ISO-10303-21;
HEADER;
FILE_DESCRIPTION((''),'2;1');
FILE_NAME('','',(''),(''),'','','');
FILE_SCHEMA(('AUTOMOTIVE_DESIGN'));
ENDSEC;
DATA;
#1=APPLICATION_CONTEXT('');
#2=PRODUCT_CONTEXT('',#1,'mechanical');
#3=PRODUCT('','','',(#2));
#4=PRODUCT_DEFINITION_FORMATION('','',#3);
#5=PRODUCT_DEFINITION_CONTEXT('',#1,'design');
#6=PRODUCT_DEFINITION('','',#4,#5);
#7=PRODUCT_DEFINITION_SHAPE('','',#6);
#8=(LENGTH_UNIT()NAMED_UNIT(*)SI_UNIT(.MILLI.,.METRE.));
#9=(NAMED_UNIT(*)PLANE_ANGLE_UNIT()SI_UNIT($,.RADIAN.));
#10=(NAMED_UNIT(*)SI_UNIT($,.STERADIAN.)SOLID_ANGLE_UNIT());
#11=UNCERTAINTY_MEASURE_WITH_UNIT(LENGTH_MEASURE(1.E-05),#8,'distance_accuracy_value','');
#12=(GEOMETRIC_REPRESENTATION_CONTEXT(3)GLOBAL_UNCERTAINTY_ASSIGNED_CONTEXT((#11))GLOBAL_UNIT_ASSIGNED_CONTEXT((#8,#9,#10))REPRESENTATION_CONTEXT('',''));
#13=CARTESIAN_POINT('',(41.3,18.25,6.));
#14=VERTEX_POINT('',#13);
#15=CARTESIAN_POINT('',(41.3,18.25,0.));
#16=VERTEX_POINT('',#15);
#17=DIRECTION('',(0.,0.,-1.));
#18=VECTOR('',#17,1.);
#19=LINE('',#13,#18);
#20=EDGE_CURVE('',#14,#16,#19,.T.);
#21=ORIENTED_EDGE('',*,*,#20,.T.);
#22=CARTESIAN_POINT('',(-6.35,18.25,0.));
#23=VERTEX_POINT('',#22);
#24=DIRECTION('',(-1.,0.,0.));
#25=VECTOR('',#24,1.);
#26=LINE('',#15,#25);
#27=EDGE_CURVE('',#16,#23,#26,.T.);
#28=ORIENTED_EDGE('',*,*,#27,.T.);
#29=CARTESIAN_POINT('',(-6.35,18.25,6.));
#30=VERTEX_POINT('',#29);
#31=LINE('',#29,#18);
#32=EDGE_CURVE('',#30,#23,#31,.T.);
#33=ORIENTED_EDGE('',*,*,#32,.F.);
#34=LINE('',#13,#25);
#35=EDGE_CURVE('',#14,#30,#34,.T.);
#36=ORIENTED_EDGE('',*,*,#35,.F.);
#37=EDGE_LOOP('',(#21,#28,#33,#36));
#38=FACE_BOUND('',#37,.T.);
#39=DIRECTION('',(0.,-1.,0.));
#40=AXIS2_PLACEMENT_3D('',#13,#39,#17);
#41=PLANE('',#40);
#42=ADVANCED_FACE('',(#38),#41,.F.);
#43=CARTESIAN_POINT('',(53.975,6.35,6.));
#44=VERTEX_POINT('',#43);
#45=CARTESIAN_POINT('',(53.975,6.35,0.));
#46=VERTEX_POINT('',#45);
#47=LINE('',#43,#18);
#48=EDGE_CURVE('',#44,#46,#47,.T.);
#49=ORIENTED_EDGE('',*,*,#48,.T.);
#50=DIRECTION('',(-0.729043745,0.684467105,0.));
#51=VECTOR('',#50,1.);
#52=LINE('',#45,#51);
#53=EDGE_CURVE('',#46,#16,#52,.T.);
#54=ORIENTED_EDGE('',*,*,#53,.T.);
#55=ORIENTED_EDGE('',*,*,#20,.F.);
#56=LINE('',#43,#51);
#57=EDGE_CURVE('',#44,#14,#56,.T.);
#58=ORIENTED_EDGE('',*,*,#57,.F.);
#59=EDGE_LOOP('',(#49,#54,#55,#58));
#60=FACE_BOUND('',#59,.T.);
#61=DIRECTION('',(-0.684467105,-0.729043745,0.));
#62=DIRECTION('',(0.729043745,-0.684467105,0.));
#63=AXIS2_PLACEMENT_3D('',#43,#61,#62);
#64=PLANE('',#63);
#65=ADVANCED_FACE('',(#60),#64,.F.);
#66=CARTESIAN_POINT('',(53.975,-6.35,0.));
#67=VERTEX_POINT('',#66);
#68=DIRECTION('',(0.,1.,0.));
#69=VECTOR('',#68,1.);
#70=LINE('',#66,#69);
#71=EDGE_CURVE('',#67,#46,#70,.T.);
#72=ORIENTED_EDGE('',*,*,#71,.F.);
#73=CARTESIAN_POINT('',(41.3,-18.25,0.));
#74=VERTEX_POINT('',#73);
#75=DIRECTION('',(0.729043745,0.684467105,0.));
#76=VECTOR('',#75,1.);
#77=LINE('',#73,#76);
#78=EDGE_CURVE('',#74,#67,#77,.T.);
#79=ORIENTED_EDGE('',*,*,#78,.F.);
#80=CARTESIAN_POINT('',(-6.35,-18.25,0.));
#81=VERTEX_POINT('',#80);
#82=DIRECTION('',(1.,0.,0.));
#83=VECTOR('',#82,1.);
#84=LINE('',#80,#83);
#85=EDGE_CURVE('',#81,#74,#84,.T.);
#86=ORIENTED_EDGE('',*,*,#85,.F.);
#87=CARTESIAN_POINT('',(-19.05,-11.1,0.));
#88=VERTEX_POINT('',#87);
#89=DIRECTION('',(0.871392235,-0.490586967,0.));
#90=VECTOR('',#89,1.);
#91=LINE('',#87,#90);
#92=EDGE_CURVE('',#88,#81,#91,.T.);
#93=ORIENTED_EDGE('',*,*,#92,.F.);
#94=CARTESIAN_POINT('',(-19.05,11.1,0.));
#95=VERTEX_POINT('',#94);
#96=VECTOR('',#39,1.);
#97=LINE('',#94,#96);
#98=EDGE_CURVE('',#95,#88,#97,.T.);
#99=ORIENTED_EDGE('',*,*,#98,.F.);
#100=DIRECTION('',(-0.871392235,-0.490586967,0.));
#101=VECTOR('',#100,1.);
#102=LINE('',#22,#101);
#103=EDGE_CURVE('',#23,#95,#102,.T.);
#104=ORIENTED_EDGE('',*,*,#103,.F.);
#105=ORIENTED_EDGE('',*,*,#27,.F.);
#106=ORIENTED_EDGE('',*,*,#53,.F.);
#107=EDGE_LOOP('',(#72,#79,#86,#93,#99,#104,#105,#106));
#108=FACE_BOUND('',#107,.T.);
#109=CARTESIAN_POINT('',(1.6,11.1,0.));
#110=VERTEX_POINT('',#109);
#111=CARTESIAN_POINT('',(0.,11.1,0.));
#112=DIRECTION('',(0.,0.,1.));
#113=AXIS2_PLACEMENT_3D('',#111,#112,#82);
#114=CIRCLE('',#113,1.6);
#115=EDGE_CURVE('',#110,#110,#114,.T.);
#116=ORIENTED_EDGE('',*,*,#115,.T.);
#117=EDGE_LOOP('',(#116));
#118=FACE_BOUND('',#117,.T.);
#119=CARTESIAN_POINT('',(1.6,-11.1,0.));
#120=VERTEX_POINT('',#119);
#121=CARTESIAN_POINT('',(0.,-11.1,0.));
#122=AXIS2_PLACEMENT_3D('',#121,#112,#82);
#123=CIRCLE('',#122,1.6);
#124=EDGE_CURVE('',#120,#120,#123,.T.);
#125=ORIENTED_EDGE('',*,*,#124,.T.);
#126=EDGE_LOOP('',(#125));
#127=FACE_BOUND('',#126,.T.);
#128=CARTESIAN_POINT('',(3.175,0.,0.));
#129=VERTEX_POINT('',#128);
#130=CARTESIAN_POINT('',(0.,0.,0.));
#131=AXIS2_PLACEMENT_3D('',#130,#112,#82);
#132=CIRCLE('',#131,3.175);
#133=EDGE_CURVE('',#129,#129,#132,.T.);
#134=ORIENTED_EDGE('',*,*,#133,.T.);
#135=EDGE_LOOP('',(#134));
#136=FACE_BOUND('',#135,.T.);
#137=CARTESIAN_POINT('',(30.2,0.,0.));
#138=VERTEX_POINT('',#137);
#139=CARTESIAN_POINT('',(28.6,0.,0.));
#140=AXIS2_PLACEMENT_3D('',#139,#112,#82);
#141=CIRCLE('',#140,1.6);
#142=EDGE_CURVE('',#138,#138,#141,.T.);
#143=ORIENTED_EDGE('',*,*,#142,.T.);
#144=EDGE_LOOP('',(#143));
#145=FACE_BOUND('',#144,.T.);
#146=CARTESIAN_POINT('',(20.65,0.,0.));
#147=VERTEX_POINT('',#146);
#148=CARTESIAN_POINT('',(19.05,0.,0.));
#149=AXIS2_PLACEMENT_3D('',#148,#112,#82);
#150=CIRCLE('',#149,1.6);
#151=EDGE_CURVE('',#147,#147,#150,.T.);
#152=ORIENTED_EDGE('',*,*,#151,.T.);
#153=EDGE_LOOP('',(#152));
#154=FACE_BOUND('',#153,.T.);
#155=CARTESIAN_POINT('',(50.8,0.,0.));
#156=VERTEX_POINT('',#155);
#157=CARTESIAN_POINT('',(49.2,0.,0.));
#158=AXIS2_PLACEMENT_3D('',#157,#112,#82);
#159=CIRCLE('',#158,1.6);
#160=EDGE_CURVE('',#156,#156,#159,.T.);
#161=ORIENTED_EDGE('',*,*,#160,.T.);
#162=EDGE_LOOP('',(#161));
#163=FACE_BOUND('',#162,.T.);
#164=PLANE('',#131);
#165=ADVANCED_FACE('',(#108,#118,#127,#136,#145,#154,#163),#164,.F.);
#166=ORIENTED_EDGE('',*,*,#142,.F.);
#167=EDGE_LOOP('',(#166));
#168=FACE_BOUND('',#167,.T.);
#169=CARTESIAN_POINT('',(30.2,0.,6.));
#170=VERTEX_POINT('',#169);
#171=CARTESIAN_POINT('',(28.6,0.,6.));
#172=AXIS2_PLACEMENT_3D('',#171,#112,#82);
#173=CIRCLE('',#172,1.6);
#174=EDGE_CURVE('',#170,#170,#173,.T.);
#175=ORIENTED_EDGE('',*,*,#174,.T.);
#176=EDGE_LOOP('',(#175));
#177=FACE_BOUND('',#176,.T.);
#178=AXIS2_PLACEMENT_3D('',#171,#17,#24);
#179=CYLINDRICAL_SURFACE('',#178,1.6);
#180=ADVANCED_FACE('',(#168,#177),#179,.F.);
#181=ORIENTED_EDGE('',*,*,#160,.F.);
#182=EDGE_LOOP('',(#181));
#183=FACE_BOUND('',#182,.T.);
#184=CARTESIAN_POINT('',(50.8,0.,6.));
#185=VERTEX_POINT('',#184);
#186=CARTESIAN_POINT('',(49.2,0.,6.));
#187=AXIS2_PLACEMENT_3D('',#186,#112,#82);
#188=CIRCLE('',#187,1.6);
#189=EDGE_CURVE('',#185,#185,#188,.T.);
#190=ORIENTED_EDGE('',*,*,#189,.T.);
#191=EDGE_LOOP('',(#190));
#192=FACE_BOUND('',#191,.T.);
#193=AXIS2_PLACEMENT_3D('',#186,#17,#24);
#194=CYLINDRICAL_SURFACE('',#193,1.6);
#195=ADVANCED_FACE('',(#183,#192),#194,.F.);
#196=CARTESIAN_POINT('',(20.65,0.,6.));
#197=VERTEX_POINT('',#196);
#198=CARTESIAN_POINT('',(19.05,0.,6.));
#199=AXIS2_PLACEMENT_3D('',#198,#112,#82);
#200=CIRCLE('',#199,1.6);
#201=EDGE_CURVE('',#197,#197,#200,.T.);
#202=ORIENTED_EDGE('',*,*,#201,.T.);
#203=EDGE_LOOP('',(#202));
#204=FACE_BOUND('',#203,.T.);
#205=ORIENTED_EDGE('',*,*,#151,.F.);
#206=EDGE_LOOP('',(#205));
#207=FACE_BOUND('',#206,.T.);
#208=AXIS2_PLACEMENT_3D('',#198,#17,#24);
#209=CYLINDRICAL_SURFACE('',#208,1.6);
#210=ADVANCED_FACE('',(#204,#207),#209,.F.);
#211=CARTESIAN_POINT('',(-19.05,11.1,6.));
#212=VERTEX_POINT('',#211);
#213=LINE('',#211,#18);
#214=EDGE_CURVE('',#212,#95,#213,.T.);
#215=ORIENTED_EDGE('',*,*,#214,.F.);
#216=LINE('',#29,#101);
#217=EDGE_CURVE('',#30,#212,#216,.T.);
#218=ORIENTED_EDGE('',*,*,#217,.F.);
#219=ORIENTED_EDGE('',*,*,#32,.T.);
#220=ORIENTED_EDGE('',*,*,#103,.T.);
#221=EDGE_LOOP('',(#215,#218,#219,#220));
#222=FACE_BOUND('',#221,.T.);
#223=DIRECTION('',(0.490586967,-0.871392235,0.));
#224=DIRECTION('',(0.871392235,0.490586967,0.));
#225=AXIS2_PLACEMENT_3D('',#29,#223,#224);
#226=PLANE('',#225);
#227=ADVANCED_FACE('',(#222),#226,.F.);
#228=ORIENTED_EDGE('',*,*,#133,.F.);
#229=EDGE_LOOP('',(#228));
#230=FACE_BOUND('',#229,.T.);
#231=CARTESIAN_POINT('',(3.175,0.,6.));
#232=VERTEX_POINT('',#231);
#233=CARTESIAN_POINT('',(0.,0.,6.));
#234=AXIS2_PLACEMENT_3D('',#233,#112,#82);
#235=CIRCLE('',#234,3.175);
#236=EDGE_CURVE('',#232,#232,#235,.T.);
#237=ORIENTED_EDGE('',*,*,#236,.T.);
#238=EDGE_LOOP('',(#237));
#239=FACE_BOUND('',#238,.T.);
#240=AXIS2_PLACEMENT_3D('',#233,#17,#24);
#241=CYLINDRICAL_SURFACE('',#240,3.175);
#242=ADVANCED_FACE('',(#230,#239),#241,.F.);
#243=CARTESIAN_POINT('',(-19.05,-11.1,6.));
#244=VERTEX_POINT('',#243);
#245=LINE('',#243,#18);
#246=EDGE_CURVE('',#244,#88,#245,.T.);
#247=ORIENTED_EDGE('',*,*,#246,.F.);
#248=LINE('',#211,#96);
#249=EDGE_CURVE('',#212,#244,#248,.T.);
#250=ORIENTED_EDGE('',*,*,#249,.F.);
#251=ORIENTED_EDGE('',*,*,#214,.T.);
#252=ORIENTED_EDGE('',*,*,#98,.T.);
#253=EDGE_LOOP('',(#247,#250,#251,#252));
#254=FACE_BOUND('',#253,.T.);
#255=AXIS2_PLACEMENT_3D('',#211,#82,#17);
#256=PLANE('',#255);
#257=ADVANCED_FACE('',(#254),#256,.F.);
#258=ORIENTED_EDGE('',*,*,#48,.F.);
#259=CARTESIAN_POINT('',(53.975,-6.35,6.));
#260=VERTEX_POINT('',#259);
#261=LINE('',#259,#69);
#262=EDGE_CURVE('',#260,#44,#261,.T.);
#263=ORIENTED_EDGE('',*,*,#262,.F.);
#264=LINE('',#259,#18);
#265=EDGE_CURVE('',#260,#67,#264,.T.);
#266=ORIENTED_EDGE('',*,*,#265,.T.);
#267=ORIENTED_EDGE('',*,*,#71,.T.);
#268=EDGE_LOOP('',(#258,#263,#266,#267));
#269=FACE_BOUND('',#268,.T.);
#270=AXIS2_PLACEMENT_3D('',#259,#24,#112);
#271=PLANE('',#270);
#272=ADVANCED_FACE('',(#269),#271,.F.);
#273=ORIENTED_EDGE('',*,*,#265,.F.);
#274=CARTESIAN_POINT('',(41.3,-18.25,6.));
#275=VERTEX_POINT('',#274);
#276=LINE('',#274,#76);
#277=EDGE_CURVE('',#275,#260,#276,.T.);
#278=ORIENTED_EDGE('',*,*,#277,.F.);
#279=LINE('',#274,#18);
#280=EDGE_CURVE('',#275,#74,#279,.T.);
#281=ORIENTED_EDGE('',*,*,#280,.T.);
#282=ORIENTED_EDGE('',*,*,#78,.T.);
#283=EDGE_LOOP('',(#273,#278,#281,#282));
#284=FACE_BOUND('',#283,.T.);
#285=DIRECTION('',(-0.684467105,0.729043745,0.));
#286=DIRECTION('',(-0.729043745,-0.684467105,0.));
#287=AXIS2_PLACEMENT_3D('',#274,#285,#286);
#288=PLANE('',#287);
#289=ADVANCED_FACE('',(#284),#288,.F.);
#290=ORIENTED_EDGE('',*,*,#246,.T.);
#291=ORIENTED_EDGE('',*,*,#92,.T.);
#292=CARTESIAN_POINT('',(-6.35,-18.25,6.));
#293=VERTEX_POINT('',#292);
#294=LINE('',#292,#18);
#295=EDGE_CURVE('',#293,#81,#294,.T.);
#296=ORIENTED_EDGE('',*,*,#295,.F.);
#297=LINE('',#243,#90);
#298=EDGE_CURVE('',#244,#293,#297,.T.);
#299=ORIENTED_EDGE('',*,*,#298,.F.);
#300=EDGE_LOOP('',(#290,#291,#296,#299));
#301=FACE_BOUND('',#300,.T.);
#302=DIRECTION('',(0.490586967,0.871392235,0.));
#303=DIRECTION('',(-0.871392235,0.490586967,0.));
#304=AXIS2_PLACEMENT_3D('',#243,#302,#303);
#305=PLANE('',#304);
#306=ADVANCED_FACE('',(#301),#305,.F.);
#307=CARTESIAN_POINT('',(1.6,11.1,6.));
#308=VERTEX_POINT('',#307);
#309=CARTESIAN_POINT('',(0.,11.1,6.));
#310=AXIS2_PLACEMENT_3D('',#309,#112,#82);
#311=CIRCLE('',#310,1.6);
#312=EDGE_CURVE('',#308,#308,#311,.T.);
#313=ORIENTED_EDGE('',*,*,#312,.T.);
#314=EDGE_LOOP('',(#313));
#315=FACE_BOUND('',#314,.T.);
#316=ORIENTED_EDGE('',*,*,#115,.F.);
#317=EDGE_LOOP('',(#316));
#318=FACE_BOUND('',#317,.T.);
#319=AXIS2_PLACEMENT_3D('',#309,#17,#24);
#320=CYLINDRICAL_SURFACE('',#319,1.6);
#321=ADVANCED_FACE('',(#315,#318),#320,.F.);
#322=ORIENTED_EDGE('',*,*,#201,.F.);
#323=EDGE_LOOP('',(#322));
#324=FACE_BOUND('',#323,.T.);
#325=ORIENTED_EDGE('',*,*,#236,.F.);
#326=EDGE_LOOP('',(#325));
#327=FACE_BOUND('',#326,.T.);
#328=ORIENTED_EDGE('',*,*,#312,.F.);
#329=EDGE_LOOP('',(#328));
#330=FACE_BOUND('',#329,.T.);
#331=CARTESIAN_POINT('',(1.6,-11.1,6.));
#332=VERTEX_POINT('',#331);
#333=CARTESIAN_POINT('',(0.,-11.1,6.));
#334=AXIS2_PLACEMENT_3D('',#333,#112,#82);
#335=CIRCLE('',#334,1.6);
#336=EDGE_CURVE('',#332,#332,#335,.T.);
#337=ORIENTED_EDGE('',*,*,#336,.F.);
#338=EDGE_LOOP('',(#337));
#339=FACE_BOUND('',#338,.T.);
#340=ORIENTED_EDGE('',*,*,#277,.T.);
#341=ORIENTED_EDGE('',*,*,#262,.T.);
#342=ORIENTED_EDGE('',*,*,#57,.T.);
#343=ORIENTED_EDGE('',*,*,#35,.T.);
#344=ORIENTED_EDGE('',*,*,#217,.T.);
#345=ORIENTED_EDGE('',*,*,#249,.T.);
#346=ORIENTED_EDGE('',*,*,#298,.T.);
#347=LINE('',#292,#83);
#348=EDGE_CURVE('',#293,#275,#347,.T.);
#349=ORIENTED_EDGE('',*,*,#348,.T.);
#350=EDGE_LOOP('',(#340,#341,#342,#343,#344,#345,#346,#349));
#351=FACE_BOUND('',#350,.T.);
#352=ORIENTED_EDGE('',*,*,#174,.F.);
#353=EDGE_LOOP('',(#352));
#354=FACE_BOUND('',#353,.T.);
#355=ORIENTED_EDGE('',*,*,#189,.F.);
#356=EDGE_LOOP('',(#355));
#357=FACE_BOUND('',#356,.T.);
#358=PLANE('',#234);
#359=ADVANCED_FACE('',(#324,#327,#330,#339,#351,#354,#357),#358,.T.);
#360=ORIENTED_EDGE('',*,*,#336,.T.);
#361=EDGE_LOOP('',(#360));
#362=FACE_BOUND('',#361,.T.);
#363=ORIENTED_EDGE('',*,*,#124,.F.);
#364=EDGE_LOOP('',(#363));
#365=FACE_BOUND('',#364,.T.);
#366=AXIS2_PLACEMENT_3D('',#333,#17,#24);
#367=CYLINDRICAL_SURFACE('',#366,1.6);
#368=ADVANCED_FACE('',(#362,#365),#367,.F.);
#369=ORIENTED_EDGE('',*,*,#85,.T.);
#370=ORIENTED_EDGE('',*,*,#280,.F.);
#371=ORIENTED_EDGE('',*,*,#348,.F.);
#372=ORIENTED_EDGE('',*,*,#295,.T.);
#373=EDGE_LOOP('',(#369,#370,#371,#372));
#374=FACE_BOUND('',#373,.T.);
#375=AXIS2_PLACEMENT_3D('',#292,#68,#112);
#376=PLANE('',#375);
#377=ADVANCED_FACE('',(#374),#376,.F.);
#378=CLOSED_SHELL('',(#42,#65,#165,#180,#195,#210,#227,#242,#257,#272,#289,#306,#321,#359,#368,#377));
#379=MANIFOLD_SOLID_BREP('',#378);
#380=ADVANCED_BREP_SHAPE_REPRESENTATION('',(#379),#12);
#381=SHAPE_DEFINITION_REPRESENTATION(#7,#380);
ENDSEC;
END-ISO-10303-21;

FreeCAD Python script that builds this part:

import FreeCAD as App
import Part
import Sketcher


def add_polygon(sketch, points):
    """Adds a closed chain of lines whose ends are joined by coincident constraints."""
    first, n = sketch.GeometryCount, len(points)
    for a, b in zip(points, points[1:] + points[:1]):
        sketch.addGeometry(Part.LineSegment(App.Vector(*a, 0), App.Vector(*b, 0)), False)
    for i in range(n):
        sketch.addConstraint(Sketcher.Constraint("Coincident", first + i, 2, first + (i + 1) % n, 1))

doc = App.newDocument("Part")
body = doc.addObject("PartDesign::Body", "Body")

# Sketch on XY plane
sketch1 = doc.addObject("Sketcher::SketchObject", "Sketch")
body.addObject(sketch1)
sketch1.AttachmentSupport = (doc.XY_Plane, [""])
sketch1.MapMode = "FlatFace"
add_polygon(sketch1, [(-19.05, -11.1), (-6.35, -18.25), (41.3, -18.25), (53.975, -6.35), (53.975, 6.35), (41.3, 18.25), (-6.35, 18.25), (-19.05, 11.1)])  # lines 0-7
sketch1.addGeometry(Part.Circle(App.Vector(0, -11.1, 0), App.Vector(0, 0, 1), 1.6), False)  # 8
sketch1.addGeometry(Part.Circle(App.Vector(0, 0, 0), App.Vector(0, 0, 1), 3.175), False)  # 9
sketch1.addGeometry(Part.Circle(App.Vector(19.05, 0, 0), App.Vector(0, 0, 1), 1.6), False)  # 10
sketch1.addGeometry(Part.Circle(App.Vector(28.6, 0, 0), App.Vector(0, 0, 1), 1.6), False)  # 11
sketch1.addGeometry(Part.Circle(App.Vector(49.2, 0, 0), App.Vector(0, 0, 1), 1.6), False)  # 12
sketch1.addGeometry(Part.Circle(App.Vector(0, 11.1, 0), App.Vector(0, 0, 1), 1.6), False)  # 13
sketch1.addConstraint([
    Sketcher.Constraint("Horizontal", 1),
    Sketcher.Constraint("Vertical", 3),
    Sketcher.Constraint("Horizontal", 5),
    Sketcher.Constraint("Vertical", 7),
    Sketcher.Constraint("Coincident", 9, 3, -1, 1),
    Sketcher.Constraint("Equal", 8, 10),
    Sketcher.Constraint("Equal", 10, 11),
    Sketcher.Constraint("Equal", 11, 12),
    Sketcher.Constraint("Equal", 12, 13),
    Sketcher.Constraint("Symmetric", 8, 3, 13, 3, -1, 1),
    Sketcher.Constraint("Symmetric", 1, 2, 4, 2, -1),
    Sketcher.Constraint("PointOnObject", 8, 3, -2),
    Sketcher.Constraint("PointOnObject", 10, 3, -1),
    Sketcher.Constraint("PointOnObject", 11, 3, -1),
    Sketcher.Constraint("PointOnObject", 12, 3, -1),
    Sketcher.Constraint("Horizontal", 13, 3, 6, 2),
    Sketcher.Constraint("Horizontal", 8, 3, 7, 2),
    Sketcher.Constraint("Vertical", 0, 2, 5, 2),
    Sketcher.Constraint("Equal", 2, 4),
    Sketcher.Constraint("Diameter", 8, 3.2),
    Sketcher.Constraint("Diameter", 9, 6.35),
    Sketcher.Constraint("DistanceY", 3, 1, 3, 2, 12.7),
    Sketcher.Constraint("DistanceY", 7, 2, 7, 1, 22.2),
    Sketcher.Constraint("DistanceX", 1, 1, 1, 2, 47.65),
    Sketcher.Constraint("DistanceX", -1, 1, 11, 3, 28.6),
    Sketcher.Constraint("DistanceX", -1, 1, 12, 3, 49.2),
    Sketcher.Constraint("DistanceX", -1, 1, 1, 2, 41.3),
    Sketcher.Constraint("DistanceX", 0, 2, 10, 3, 25.4),
    Sketcher.Constraint("DistanceY", 1, 2, 2, 2, 11.9),
    Sketcher.Constraint("DistanceX", 6, 2, 5, 2, 12.7),
    Sketcher.Constraint("DistanceX", -1, 1, 2, 2, 53.975),
])
pad1 = doc.addObject("PartDesign::Pad", "Pad")
body.addObject(pad1)
pad1.Profile = sketch1
pad1.Length = 6

doc.recompute()
